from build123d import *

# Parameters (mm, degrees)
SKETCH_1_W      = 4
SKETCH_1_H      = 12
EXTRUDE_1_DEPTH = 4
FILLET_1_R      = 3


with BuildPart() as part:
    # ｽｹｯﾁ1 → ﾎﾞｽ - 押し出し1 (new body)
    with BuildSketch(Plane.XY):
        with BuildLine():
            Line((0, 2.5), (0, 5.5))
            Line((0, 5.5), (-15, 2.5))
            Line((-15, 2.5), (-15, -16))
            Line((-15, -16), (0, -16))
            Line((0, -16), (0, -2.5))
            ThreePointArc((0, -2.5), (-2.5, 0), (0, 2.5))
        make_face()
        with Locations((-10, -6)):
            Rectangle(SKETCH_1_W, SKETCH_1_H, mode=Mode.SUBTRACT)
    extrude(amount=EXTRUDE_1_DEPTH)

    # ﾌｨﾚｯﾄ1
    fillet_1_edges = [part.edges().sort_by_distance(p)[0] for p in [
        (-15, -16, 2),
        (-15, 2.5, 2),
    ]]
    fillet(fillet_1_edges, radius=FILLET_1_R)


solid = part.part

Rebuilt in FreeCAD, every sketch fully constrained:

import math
import FreeCAD as App
import Part
import Sketcher

V = App.Vector
Q = App.Units.Quantity


def edges_at(feature, points):
    """Names of the edges that pass closest to the given points."""
    edges = feature.Shape.Edges
    near = lambda p: min(range(len(edges)), key=lambda i: edges[i].distToShape(Part.Vertex(*p))[0])
    return sorted({f"Edge{near(p) + 1}" for p in points})

doc = App.newDocument("Part")
body = doc.addObject("PartDesign::Body", "Body")

# Sketch on XY plane
sketch1 = doc.addObject("Sketcher::SketchObject", "Sketch")
body.addObject(sketch1)
sketch1.AttachmentSupport = (doc.XY_Plane, [""])
sketch1.MapMode = "FlatFace"
sketch1.addGeometry([
    Part.LineSegment(V(0, 2.5, 0), V(0, 5.5, 0)),  # 0
    Part.LineSegment(V(0, 5.5, 0), V(-15, 2.5, 0)),  # 1
    Part.LineSegment(V(-15, 2.5, 0), V(-15, -16, 0)),  # 2
    Part.LineSegment(V(-15, -16, 0), V(0, -16, 0)),  # 3
    Part.LineSegment(V(0, -16, 0), V(0, -2.5, 0)),  # 4
    Part.ArcOfCircle(Part.Circle(V(0, 0, 0), V(0, 0, 1), 2.5), math.radians(90), math.radians(270)),  # 5
    Part.LineSegment(V(-8, -12, 0), V(-12, -12, 0)),  # 6
    Part.LineSegment(V(-12, -12, 0), V(-12, 0, 0)),  # 7
    Part.LineSegment(V(-12, 0, 0), V(-8, 0, 0)),  # 8
    Part.LineSegment(V(-8, 0, 0), V(-8, -12, 0)),  # 9
], False)
sketch1.addConstraint([
    Sketcher.Constraint("Coincident", 0, 2, 1, 1),
    Sketcher.Constraint("Coincident", 1, 2, 2, 1),
    Sketcher.Constraint("Coincident", 2, 2, 3, 1),
    Sketcher.Constraint("Coincident", 3, 2, 4, 1),
    Sketcher.Constraint("Coincident", 4, 2, 5, 2),
    Sketcher.Constraint("Coincident", 5, 1, 0, 1),
    Sketcher.Constraint("Coincident", 6, 2, 7, 1),
    Sketcher.Constraint("Coincident", 7, 2, 8, 1),
    Sketcher.Constraint("Coincident", 8, 2, 9, 1),
    Sketcher.Constraint("Coincident", 9, 2, 6, 1),
    Sketcher.Constraint("Vertical", 0),
    Sketcher.Constraint("Vertical", 2),
    Sketcher.Constraint("Horizontal", 3),
    Sketcher.Constraint("Vertical", 4),
    Sketcher.Constraint("Horizontal", 6),
    Sketcher.Constraint("Vertical", 7),
    Sketcher.Constraint("Horizontal", 8),
    Sketcher.Constraint("Vertical", 9),
    Sketcher.Constraint("Coincident", 5, 3, -1, 1),
    Sketcher.Constraint("PointOnObject", 0, 2, -2),
    Sketcher.Constraint("PointOnObject", 3, 2, -2),
    Sketcher.Constraint("PointOnObject", 7, 2, -1),
    Sketcher.Constraint("Horizontal", 1, 2, 5, 1),
    Sketcher.Constraint("Radius", 5, Q("2.5 mm")),
    Sketcher.Constraint("DistanceX", 3, 1, 3, 2, Q("15 mm")),
    Sketcher.Constraint("DistanceX", 6, 2, 6, 1, Q("4 mm")),
    Sketcher.Constraint("DistanceY", 0, 1, 0, 2, Q("3 mm")),
    Sketcher.Constraint("DistanceY", 7, 1, 7, 2, Q("12 mm")),
    Sketcher.Constraint("DistanceY", 2, 2, 2, 1, Q("18.5 mm")),
    Sketcher.Constraint("DistanceX", 6, 2, -1, 1, Q("12 mm")),
])
pad1 = doc.addObject("PartDesign::Pad", "Pad")
body.addObject(pad1)
pad1.Profile = sketch1
pad1.Length = 4
doc.recompute()

fillet = doc.addObject("PartDesign::Fillet", "Fillet")
body.addObject(fillet)
fillet.Base = (pad1, edges_at(pad1, [(-15, -16, 2), (-15, 2.5, 2)]))
fillet.Radius = 3

doc.recompute()
